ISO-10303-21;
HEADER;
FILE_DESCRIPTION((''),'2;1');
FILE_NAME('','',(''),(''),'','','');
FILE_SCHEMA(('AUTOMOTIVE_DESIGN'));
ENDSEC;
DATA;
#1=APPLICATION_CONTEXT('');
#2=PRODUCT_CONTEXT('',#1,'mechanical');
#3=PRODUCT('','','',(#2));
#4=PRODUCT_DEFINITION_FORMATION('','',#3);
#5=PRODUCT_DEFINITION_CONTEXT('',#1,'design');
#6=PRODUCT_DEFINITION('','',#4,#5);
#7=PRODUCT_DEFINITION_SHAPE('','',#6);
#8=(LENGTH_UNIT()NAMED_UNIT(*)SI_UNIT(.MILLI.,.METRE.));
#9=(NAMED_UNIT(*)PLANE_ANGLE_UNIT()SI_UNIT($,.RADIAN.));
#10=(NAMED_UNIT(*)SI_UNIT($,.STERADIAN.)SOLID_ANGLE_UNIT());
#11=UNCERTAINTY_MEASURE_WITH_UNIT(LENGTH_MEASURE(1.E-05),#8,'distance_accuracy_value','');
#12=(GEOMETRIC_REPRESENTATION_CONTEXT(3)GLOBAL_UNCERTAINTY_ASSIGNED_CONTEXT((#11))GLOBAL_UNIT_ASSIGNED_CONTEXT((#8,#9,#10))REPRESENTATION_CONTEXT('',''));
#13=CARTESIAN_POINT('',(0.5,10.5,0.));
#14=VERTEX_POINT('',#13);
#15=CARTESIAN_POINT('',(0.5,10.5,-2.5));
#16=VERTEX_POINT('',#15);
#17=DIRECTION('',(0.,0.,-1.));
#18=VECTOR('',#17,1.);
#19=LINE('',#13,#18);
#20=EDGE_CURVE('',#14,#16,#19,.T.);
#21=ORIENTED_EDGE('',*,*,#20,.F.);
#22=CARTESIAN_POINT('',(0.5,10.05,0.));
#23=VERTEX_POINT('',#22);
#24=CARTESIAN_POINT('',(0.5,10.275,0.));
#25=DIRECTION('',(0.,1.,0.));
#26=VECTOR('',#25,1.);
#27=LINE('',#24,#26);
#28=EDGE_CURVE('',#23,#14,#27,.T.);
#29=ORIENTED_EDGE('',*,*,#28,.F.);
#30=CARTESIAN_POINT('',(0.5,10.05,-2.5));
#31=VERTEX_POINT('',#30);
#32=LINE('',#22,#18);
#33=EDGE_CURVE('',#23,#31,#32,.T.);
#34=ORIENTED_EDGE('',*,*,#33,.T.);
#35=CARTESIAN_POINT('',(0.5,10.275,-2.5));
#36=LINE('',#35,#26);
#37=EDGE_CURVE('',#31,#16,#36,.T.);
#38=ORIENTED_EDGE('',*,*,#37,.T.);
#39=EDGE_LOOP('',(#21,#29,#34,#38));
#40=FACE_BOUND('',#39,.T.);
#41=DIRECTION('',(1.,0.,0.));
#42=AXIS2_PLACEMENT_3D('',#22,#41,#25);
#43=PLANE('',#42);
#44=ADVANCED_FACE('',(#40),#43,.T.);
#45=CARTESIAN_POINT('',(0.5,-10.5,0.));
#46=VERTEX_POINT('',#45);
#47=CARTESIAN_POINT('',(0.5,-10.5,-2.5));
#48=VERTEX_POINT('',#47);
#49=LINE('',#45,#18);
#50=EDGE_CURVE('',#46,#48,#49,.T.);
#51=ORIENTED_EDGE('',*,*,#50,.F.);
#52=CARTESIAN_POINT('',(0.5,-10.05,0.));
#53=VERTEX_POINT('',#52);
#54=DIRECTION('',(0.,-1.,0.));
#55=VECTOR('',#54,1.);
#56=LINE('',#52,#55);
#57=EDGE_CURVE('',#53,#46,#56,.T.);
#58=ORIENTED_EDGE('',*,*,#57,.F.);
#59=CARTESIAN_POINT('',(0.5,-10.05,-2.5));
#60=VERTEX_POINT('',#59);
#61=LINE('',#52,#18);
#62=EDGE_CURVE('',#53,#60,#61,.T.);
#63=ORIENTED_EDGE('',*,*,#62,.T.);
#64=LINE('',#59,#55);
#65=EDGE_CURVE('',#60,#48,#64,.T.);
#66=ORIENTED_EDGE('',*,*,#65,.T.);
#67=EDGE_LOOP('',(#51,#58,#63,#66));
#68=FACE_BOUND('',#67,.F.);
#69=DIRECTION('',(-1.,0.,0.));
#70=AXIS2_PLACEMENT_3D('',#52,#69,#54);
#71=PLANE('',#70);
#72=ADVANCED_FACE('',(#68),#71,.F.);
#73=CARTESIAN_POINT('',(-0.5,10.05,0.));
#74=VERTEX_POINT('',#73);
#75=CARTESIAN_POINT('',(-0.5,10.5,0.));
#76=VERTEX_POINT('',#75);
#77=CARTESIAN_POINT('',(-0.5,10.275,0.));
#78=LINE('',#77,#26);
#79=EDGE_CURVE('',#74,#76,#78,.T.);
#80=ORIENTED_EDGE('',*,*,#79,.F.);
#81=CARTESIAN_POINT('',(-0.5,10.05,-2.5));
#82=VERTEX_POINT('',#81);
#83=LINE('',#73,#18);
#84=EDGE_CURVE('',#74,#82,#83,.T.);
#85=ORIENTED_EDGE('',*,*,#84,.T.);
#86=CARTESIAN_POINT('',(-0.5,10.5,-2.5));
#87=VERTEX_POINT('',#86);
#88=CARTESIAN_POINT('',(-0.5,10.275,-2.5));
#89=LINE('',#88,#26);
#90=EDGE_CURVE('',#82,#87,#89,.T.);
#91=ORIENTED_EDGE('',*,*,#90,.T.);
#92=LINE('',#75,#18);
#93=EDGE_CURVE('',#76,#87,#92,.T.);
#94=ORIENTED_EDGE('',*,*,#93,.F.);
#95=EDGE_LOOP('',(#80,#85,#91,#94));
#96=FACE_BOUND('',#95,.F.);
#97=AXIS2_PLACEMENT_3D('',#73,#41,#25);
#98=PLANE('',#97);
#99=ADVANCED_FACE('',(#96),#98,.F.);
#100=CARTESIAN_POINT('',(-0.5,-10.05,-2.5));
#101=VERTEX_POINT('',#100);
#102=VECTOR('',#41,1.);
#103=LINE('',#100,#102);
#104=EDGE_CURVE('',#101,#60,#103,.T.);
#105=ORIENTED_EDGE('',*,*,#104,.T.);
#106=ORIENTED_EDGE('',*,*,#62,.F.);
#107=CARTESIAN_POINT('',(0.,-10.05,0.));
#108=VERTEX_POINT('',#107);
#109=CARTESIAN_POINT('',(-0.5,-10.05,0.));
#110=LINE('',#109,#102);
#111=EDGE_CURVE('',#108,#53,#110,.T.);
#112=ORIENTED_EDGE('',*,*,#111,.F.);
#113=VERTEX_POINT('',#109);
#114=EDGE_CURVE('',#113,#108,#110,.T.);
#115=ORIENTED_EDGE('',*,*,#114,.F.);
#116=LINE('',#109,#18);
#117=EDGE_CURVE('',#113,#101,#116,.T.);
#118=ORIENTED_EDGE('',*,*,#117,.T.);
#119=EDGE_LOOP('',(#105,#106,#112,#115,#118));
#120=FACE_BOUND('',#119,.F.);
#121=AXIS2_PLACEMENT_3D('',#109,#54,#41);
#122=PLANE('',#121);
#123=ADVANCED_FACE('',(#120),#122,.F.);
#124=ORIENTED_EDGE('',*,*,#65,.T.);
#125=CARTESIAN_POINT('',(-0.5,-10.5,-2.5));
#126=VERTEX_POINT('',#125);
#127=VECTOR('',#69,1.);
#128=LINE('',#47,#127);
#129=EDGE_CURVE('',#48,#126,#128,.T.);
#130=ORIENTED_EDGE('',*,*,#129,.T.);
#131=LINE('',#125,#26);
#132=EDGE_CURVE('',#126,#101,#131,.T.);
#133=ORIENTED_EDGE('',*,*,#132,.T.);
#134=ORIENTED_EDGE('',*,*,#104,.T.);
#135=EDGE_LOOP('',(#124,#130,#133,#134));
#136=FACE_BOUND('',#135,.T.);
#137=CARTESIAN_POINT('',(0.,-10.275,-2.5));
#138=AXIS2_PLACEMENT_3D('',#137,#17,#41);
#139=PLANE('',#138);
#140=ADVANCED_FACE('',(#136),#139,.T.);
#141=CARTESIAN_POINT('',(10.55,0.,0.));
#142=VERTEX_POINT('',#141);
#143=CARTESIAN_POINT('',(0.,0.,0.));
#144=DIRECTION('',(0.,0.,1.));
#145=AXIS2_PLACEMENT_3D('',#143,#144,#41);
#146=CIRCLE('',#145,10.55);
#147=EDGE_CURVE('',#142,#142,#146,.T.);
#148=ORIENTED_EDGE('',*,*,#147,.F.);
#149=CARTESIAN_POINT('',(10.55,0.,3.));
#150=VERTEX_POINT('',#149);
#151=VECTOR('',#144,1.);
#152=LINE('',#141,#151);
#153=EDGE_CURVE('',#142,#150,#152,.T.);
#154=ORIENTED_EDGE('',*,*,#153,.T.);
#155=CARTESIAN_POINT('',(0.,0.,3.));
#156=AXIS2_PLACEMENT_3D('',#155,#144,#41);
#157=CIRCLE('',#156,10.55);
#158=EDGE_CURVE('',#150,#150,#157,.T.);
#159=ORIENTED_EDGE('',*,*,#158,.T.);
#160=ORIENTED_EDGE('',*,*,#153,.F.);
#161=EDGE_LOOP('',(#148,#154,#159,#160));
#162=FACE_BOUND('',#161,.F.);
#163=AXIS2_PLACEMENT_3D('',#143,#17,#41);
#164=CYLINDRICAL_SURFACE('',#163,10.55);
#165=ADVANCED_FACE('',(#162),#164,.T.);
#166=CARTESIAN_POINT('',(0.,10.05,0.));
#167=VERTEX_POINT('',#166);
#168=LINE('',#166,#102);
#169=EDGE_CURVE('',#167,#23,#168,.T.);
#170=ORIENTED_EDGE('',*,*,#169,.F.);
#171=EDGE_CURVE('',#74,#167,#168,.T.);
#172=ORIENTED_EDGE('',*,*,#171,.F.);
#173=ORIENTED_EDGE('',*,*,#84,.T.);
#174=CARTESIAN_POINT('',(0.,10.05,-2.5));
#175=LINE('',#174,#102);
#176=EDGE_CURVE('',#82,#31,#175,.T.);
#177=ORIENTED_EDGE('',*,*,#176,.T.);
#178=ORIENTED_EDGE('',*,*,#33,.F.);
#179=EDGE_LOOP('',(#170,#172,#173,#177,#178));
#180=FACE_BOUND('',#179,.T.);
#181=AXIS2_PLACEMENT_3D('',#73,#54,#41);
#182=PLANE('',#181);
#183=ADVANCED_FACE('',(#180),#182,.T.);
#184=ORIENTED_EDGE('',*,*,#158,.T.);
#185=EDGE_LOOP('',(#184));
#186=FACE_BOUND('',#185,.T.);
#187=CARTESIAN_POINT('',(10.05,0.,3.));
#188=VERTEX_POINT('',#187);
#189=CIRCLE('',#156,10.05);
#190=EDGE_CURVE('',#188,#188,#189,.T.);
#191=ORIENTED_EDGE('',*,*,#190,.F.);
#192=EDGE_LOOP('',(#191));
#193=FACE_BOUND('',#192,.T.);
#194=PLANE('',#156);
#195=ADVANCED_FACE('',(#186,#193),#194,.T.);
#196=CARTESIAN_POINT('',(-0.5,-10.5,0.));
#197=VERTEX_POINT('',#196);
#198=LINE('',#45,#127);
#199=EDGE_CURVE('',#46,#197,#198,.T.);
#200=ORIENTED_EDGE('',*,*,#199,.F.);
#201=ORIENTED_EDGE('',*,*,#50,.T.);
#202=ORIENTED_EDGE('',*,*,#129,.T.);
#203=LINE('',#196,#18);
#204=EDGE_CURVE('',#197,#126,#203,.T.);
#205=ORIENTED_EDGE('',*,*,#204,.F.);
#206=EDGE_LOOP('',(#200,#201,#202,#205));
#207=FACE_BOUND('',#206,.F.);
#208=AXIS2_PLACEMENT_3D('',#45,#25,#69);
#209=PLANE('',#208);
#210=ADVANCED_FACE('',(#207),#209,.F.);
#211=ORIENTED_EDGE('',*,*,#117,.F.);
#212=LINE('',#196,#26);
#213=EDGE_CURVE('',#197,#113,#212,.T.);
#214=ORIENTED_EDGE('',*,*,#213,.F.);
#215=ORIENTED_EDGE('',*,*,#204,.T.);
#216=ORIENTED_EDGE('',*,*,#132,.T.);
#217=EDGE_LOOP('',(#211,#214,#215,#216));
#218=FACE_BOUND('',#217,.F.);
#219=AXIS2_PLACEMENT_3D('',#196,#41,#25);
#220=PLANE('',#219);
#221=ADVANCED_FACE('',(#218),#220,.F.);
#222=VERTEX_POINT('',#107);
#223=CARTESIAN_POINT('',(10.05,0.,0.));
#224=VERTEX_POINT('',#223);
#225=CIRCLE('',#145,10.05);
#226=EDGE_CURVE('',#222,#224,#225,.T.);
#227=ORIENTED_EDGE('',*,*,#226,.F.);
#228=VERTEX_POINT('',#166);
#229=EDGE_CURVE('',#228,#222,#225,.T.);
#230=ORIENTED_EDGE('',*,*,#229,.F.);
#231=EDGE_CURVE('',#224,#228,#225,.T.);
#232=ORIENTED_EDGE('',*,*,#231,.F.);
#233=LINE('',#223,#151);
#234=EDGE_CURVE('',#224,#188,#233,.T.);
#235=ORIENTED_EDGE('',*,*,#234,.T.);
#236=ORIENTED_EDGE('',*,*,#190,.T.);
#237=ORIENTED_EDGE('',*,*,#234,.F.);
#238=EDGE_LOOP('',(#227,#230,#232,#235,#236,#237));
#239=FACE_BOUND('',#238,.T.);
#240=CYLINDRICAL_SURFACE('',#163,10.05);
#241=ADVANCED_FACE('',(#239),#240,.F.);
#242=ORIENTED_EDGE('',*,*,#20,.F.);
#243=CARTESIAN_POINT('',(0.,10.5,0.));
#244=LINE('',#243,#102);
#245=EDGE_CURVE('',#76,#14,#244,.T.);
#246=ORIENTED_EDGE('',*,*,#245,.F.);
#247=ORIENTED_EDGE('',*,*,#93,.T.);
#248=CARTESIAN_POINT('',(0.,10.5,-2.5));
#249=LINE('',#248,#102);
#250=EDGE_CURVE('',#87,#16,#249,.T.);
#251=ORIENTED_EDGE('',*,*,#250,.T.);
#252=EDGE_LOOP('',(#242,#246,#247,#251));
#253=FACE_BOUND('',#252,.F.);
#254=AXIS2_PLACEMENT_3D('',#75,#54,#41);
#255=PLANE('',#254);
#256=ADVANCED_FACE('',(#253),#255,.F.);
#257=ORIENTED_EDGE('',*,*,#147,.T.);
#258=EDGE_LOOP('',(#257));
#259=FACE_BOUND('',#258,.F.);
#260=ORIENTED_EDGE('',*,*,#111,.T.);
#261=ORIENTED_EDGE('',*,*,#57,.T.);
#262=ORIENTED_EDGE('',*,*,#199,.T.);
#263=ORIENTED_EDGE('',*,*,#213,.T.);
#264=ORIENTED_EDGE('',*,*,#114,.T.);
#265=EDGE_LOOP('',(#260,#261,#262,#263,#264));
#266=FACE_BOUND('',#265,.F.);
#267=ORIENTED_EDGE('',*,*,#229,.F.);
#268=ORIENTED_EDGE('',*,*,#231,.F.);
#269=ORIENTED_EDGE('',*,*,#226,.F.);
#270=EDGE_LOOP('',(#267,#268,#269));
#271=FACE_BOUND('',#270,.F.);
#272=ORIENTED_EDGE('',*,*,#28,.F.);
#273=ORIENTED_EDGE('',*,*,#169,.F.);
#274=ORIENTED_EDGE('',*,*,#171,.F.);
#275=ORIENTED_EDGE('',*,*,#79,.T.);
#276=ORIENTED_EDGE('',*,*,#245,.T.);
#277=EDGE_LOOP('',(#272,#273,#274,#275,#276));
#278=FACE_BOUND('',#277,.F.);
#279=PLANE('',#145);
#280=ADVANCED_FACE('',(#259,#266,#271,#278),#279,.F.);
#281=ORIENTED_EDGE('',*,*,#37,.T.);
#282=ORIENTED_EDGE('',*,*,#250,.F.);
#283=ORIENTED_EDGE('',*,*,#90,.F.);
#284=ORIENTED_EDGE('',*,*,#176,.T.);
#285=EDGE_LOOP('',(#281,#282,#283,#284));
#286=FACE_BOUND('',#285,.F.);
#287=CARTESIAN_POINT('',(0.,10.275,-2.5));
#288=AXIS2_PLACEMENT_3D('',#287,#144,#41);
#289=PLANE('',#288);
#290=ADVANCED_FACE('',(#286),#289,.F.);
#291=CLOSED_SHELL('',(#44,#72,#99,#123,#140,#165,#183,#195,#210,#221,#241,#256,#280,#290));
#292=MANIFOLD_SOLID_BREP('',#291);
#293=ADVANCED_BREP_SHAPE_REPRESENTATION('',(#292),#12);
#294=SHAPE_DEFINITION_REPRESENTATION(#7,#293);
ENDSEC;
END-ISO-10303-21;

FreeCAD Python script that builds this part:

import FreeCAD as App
import Part
import Sketcher
from FreeCAD import Vector
Q = App.Units.Quantity


def add_polygon(sketch, points):
    """Adds a closed chain of lines whose ends are joined by coincident constraints."""
    first, n = sketch.GeometryCount, len(points)
    for a, b in zip(points, points[1:] + points[:1]):
        sketch.addGeometry(Part.LineSegment(App.Vector(*a, 0), App.Vector(*b, 0)), False)
    for i in range(n):
        sketch.addConstraint(Sketcher.Constraint("Coincident", first + i, 2, first + (i + 1) % n, 1))

doc = App.newDocument("Part")
body = doc.addObject("PartDesign::Body", "Body")

sketch1 = doc.addObject("Sketcher::SketchObject", "Sketch")
body.addObject(sketch1)
sketch1.AttachmentSupport = (doc.XY_Plane, [""])
sketch1.MapMode = "FlatFace"
sketch1.addGeometry(Part.Circle(Vector(0, 0, 0), Vector(0, 0, 1), 11), False)
sketch1.addGeometry(Part.Circle(Vector(0, 0, 0), Vector(0, 0, 1), 10), False)
sketch1.addConstraint(Sketcher.Constraint("Coincident", 0, 3, -1, 1))
sketch1.addConstraint(Sketcher.Constraint("Coincident", 1, 3, -1, 1))
sketch1.addConstraint(Sketcher.Constraint("Diameter", 0, Q("21.1 mm")))
sketch1.addConstraint(Sketcher.Constraint("Diameter", 1, Q("20.1 mm")))
pad1 = doc.addObject("PartDesign::Pad", "Pad")
body.addObject(pad1)
pad1.Profile = sketch1
pad1.Length = 3

sketch2 = doc.addObject("Sketcher::SketchObject", "Sketch001")
body.addObject(sketch2)
sketch2.AttachmentSupport = (doc.XY_Plane, [""])
sketch2.MapMode = "FlatFace"
add_polygon(sketch2, [(0.5, -10.05), (0.5, -10.5), (-0.5, -10.5), (-0.5, -10.05)])
sketch2.addConstraint(Sketcher.Constraint("Vertical", 0))
sketch2.addConstraint(Sketcher.Constraint("Horizontal", 1))
sketch2.addConstraint(Sketcher.Constraint("Vertical", 2))
sketch2.addConstraint(Sketcher.Constraint("Horizontal", 3))
sketch2.addConstraint(Sketcher.Constraint("DistanceX", 1, 2, 1, 1, Q("1 mm")))
sketch2.addConstraint(Sketcher.Constraint("DistanceY", 0, 2, 0, 1, Q("0.45 mm")))
sketch2.addConstraint(Sketcher.Constraint("DistanceX", -1, 1, 0, 2, Q("0.5 mm")))
sketch2.addConstraint(Sketcher.Constraint("DistanceY", 0, 2, -1, 1, Q("10.5 mm")))
pad2 = doc.addObject("PartDesign::Pad", "Pad001")
body.addObject(pad2)
pad2.Profile = sketch2
pad2.Length = 2.5
pad2.Reversed = True

sketch3 = doc.addObject("Sketcher::SketchObject", "Sketch002")
body.addObject(sketch3)
sketch3.AttachmentSupport = (doc.XY_Plane, [""])
sketch3.MapMode = "FlatFace"
add_polygon(sketch3, [(-0.5, 10.5), (-0.5, 10.05), (0.5, 10.05), (0.5, 10.5)])
sketch3.addConstraint(Sketcher.Constraint("Vertical", 0))
sketch3.addConstraint(Sketcher.Constraint("Horizontal", 1))
sketch3.addConstraint(Sketcher.Constraint("Vertical", 2))
sketch3.addConstraint(Sketcher.Constraint("Horizontal", 3))
sketch3.addConstraint(Sketcher.Constraint("DistanceX", 1, 1, 1, 2, Q("1 mm")))
sketch3.addConstraint(Sketcher.Constraint("DistanceY", 0, 2, 0, 1, Q("0.45 mm")))
sketch3.addConstraint(Sketcher.Constraint("DistanceX", 0, 2, -1, 1, Q("0.5 mm")))
sketch3.addConstraint(Sketcher.Constraint("DistanceY", -1, 1, 2, 2, Q("10.5 mm")))
pad3 = doc.addObject("PartDesign::Pad", "Pad002")
body.addObject(pad3)
pad3.Profile = sketch3
pad3.Length = 2.5
pad3.Reversed = True

doc.recompute()
